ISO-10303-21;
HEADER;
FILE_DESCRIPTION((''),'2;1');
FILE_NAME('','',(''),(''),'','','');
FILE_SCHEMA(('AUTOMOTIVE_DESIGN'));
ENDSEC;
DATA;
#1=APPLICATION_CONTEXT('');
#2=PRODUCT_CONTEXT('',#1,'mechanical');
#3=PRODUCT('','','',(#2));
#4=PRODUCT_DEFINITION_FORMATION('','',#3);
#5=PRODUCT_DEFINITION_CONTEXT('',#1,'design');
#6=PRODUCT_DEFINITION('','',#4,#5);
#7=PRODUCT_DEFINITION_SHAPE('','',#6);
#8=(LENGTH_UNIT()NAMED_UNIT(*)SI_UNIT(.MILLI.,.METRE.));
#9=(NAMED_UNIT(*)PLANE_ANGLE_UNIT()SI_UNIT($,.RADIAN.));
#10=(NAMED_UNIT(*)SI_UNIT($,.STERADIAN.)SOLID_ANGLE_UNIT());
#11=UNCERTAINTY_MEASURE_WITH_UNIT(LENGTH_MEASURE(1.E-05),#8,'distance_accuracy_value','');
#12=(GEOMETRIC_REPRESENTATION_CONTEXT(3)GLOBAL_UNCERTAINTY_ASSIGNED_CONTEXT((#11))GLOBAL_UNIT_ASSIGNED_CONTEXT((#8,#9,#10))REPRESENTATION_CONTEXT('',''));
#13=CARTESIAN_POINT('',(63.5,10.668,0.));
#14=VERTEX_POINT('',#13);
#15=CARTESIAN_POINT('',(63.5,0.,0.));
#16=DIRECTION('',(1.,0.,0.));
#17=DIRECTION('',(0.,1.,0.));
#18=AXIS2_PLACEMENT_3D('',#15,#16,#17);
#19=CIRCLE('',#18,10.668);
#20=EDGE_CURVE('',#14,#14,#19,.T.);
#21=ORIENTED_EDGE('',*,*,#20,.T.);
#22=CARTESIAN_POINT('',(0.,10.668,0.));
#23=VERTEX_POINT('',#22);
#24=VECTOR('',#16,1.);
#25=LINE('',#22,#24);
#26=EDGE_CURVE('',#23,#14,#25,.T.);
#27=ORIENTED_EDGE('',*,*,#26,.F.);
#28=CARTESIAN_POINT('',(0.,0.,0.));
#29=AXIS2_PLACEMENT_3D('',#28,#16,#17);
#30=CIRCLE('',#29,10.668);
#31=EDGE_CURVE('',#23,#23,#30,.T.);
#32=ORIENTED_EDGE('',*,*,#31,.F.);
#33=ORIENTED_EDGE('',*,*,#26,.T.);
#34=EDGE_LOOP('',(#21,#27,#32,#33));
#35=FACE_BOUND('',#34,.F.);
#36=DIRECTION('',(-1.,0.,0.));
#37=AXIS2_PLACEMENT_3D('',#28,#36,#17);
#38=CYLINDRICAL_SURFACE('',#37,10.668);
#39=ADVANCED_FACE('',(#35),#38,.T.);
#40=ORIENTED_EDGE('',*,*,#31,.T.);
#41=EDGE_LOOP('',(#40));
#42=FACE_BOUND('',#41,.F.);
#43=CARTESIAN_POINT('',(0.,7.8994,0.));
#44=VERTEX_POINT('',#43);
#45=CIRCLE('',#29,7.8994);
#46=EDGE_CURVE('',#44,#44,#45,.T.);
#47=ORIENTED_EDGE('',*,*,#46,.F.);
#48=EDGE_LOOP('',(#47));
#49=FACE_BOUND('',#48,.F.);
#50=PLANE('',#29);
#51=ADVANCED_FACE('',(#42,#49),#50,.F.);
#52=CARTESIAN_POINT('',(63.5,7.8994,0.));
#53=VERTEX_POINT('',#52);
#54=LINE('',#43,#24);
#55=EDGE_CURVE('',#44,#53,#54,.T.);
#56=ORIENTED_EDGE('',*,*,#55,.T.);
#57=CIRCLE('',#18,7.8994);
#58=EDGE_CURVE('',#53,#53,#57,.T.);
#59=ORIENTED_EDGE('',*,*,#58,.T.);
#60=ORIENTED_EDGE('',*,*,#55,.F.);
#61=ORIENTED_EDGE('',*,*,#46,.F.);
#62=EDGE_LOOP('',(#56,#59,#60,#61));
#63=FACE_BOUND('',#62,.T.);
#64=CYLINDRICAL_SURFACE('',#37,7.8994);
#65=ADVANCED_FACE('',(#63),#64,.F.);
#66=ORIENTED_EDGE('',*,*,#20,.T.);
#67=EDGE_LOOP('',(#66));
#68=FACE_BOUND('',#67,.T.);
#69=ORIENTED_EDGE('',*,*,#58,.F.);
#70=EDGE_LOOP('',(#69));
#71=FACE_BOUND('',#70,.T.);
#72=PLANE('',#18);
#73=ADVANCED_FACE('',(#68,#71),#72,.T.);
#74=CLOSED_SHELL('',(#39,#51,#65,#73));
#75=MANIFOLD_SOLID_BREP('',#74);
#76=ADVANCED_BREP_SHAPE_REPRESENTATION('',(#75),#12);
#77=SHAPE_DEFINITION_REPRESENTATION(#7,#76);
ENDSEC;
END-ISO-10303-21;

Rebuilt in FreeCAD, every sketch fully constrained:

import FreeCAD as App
import Part
import Sketcher

V = App.Vector
Q = App.Units.Quantity

doc = App.newDocument("Part")
body = doc.addObject("PartDesign::Body", "Body")

sketch1 = body.newObject("Sketcher::SketchObject", "Sketch")
sketch1.AttachmentSupport = (doc.getObject("YZ_Plane"), [""])
sketch1.MapMode = "FlatFace"
sketch1.addGeometry([
    Part.Circle(V(0, 0, 0), V(0, 0, 1), 10.668),
    Part.Circle(V(0, 0, 0), V(0, 0, 1), 7.8994),
], False)
sketch1.addConstraint([
    Sketcher.Constraint("Coincident", 0, 3, -1, 1),
    Sketcher.Constraint("Coincident", 1, 3, -1, 1),
    Sketcher.Constraint("Diameter", 0, Q("0.84 in")),
    Sketcher.Constraint("Diameter", 1, Q("0.622 in")),
])
pad1 = body.newObject("PartDesign::Pad", "Pad")
pad1.Profile = sketch1
pad1.Length = Q("2.5 in")

doc.recompute()
